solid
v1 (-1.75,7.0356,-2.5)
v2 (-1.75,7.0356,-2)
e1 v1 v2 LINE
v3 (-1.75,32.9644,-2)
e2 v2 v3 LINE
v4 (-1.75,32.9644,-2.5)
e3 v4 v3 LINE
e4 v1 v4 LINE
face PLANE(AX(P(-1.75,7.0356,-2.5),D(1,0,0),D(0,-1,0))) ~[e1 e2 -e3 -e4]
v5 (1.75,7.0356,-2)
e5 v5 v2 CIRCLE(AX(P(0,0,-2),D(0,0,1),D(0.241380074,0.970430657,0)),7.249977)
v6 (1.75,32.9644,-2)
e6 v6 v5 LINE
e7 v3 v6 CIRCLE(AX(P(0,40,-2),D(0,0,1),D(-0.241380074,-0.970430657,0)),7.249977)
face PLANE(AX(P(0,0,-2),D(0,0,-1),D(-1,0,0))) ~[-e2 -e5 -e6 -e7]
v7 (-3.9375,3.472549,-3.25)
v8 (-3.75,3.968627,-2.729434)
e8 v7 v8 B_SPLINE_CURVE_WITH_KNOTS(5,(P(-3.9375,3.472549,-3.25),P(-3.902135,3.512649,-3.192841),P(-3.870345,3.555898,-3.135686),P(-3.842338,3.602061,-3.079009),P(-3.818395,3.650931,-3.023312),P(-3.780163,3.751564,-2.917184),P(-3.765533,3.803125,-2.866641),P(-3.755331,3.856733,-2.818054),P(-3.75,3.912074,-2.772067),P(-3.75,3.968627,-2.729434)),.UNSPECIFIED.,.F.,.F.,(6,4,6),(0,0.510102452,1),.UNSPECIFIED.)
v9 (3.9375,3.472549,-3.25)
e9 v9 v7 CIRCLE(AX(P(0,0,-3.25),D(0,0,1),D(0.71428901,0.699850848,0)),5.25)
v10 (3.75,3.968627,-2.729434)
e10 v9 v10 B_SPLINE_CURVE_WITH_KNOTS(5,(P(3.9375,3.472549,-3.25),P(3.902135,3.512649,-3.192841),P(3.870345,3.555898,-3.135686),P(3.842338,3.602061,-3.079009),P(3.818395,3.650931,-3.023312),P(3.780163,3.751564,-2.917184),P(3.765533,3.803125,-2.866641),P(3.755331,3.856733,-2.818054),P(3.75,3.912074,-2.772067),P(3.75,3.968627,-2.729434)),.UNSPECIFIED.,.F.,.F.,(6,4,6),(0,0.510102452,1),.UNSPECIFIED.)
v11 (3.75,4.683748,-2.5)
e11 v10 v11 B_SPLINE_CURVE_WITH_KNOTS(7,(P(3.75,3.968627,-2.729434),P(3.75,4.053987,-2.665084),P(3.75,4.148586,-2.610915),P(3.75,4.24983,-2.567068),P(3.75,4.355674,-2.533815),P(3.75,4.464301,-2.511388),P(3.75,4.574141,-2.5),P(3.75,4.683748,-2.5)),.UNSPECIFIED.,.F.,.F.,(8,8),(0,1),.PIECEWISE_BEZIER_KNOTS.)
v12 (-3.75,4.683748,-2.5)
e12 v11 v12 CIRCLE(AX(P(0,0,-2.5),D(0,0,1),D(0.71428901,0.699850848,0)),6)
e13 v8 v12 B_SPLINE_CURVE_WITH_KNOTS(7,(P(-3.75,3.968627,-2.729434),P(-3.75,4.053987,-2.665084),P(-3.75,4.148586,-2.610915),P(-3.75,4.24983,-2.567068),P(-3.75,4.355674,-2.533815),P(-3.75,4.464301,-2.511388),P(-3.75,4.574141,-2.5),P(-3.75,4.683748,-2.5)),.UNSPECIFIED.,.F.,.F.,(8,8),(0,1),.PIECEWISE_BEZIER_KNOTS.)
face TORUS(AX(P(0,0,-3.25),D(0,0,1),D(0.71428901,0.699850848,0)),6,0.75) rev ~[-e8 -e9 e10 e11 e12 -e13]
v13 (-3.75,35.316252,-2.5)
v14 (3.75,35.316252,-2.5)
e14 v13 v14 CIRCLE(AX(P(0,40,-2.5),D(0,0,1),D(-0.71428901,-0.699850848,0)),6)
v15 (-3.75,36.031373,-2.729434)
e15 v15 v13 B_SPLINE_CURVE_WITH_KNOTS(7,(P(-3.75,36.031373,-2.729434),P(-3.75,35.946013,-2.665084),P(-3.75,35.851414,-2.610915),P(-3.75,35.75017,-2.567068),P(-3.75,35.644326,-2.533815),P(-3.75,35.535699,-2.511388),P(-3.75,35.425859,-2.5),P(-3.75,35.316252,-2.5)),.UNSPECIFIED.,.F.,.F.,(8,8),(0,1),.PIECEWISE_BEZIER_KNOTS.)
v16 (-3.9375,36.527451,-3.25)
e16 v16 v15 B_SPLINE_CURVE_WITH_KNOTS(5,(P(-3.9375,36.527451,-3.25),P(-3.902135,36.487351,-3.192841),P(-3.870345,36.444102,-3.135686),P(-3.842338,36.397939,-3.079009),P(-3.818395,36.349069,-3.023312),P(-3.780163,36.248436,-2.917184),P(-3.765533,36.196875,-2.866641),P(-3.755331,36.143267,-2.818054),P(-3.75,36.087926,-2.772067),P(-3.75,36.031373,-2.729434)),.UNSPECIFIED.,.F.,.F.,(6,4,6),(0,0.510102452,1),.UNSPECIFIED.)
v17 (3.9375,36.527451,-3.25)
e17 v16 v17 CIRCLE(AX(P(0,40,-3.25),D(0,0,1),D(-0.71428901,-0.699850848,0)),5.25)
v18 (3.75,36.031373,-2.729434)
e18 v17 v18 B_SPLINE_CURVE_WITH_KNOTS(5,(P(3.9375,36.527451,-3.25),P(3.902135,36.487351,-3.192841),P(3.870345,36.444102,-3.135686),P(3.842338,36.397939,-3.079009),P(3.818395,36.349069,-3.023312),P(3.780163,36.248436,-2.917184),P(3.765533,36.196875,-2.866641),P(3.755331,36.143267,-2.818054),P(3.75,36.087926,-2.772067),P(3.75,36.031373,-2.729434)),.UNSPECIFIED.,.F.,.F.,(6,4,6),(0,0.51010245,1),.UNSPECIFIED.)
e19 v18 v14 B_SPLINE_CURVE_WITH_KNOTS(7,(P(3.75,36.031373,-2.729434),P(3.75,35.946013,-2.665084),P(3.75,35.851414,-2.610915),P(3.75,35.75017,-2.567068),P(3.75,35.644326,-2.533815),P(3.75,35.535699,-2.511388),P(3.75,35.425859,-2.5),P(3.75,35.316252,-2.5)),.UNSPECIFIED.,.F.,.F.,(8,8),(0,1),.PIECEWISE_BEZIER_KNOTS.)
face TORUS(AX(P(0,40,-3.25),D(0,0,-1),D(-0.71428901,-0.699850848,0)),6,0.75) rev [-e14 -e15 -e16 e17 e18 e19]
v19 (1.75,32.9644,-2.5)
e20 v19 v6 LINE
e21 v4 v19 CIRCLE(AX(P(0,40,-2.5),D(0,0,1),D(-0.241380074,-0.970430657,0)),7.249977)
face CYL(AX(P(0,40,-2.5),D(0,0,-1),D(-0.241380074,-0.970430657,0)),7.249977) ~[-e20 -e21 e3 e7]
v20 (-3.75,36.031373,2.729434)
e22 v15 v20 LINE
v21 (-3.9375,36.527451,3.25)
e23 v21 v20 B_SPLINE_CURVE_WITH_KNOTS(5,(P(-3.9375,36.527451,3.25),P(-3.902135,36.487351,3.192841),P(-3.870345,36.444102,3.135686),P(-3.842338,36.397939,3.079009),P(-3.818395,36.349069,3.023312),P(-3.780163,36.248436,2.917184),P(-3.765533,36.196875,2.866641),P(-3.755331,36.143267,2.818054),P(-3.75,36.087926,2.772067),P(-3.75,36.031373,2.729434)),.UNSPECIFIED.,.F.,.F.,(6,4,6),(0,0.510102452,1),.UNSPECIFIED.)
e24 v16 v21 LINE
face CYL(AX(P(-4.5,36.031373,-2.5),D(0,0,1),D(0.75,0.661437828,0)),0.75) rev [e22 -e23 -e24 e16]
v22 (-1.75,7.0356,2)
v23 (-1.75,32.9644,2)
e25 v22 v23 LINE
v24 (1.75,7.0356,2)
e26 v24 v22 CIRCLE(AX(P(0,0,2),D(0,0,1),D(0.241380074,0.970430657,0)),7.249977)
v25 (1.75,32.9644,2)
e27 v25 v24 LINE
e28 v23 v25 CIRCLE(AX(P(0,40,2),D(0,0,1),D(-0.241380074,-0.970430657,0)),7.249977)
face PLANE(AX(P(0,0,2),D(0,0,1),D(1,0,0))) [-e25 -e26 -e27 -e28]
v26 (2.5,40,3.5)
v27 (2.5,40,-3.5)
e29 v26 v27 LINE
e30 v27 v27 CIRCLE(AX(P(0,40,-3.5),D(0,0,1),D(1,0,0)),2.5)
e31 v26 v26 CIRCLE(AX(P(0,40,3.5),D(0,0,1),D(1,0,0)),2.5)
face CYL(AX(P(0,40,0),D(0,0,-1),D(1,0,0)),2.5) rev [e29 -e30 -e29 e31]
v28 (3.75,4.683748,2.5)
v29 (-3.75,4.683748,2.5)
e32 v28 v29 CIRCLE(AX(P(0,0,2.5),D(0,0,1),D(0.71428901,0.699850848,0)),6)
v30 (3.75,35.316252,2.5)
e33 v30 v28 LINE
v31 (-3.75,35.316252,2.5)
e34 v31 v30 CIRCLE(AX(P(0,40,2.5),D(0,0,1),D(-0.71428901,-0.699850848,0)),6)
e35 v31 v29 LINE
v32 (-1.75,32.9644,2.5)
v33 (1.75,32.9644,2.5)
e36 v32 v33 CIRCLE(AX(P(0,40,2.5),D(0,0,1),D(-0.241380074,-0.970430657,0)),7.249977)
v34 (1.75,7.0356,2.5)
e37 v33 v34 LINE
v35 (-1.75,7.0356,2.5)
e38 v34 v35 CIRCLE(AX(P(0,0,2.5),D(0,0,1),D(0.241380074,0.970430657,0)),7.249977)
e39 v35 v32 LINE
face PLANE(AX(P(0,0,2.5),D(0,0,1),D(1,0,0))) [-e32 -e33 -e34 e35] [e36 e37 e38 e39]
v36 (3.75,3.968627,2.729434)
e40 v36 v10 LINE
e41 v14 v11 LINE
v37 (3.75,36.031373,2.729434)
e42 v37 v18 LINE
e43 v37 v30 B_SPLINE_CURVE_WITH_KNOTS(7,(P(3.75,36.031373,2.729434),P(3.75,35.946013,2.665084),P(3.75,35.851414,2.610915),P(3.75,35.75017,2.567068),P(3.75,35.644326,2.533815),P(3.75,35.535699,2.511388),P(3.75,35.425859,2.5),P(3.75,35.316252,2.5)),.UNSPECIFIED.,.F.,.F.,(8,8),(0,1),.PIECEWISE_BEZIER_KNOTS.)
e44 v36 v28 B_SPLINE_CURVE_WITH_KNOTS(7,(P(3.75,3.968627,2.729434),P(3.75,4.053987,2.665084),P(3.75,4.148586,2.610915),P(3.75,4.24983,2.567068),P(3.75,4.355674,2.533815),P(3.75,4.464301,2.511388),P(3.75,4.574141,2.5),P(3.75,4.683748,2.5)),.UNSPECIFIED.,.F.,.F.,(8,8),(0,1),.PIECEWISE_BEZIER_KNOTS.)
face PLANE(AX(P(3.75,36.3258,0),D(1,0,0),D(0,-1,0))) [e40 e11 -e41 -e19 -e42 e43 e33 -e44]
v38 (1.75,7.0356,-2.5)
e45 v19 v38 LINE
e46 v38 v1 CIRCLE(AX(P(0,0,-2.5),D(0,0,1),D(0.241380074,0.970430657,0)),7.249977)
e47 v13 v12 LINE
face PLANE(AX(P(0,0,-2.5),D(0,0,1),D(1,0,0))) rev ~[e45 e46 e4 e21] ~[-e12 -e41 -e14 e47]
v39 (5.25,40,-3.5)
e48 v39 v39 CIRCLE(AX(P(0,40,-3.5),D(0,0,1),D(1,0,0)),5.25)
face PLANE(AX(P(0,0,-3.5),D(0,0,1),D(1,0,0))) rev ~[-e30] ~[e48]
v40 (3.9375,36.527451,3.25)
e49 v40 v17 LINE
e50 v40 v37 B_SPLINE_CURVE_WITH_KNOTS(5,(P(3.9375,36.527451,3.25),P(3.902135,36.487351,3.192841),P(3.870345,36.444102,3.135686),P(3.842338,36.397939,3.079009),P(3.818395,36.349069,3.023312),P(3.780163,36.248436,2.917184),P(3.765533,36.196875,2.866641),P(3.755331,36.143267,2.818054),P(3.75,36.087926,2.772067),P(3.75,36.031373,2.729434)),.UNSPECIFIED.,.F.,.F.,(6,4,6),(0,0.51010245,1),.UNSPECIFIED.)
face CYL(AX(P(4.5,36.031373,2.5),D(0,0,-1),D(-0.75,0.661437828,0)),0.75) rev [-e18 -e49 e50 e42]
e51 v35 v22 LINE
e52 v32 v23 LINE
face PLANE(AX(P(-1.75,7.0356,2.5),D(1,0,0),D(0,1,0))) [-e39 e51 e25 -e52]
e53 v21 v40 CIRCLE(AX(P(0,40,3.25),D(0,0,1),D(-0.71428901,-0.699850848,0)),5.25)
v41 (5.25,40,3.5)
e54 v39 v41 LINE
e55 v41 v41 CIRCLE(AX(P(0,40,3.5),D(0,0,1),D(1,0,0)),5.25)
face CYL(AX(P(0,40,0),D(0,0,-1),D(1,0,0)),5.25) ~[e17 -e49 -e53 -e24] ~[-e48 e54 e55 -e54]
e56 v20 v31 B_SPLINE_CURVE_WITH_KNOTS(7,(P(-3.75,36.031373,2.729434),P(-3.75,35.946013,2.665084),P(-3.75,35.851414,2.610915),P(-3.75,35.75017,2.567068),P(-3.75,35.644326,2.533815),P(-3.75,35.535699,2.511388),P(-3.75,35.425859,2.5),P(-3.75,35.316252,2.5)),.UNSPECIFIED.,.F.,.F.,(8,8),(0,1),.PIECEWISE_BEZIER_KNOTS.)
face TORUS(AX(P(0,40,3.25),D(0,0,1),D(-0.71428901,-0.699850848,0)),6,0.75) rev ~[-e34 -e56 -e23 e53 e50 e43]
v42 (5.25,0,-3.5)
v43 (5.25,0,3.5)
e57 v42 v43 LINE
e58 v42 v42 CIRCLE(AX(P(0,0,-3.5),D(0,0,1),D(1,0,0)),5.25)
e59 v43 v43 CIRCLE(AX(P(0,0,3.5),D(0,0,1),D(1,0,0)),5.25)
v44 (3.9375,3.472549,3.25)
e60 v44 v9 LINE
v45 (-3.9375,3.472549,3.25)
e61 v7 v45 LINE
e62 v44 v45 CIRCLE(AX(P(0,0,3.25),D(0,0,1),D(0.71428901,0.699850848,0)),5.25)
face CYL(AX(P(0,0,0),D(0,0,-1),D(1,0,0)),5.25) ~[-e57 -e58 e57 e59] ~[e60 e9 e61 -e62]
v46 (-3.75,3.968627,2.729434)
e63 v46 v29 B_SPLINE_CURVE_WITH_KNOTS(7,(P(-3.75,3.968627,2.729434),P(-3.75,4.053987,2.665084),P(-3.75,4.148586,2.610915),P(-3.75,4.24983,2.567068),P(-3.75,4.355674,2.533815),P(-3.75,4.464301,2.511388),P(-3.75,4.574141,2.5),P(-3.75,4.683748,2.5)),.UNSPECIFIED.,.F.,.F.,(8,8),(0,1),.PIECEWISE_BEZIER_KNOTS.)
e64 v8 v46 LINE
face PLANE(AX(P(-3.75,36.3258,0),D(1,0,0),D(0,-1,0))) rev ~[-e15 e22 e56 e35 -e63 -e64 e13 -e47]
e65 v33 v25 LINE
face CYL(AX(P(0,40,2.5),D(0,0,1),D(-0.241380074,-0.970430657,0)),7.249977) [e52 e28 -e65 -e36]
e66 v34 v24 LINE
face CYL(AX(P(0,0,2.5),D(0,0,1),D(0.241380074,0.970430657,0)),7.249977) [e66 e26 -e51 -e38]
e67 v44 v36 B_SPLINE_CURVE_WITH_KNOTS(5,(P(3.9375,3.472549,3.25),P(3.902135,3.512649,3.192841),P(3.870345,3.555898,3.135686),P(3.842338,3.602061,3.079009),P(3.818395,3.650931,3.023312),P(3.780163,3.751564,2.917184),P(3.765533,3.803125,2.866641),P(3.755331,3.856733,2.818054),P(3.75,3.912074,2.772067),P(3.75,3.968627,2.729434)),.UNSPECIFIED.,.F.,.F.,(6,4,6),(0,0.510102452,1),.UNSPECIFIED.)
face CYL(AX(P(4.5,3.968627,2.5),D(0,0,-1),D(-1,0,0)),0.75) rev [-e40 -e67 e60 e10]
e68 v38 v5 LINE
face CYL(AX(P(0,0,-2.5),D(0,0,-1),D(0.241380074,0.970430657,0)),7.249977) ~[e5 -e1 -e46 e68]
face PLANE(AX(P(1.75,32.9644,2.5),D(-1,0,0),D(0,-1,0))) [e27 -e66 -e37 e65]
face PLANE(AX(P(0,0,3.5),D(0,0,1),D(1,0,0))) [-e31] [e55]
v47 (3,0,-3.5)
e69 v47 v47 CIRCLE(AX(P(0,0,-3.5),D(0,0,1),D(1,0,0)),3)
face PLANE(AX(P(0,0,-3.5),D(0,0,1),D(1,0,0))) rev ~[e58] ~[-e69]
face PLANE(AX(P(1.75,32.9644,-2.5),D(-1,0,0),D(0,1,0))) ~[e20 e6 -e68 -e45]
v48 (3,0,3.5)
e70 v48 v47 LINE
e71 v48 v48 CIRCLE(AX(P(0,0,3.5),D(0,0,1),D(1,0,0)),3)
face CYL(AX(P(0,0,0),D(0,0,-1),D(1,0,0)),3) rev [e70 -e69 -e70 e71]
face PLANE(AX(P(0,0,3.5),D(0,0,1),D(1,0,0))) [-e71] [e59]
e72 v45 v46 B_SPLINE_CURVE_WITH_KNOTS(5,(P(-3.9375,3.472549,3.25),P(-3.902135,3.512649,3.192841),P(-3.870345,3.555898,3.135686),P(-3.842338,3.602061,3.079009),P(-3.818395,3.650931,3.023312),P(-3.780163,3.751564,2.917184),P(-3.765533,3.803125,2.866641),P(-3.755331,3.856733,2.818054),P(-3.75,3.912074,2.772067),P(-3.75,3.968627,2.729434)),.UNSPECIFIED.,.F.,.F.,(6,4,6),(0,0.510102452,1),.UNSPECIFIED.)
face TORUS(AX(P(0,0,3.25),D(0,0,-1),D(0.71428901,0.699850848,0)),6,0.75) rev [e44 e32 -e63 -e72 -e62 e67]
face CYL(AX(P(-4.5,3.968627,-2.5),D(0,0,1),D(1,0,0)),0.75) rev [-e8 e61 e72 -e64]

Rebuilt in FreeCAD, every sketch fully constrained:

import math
import FreeCAD as App
import Part
import Sketcher
from FreeCAD import Vector


def edges_at(feature, points):
    """Names of the edges that pass closest to the given points."""
    edges = feature.Shape.Edges
    near = lambda p: min(range(len(edges)), key=lambda i: edges[i].distToShape(Part.Vertex(*p))[0])
    return sorted({f"Edge{near(p) + 1}" for p in points})

doc = App.newDocument("Part")
body = doc.addObject("PartDesign::Body", "Body")
body.AllowCompound = True

sketch1 = body.newObject("Sketcher::SketchObject", "Sketch")
sketch1.AttachmentSupport = (doc.getObject("XY_Plane"), [""])
sketch1.MapMode = "FlatFace"
sketch1.addGeometry([
    Part.Circle(Vector(0, 40, 0), Vector(0, 0, 1), 5.2),
    Part.Circle(Vector(0, 40, 0), Vector(0, 0, 1), 2.5),
    Part.Circle(Vector(0, 0, 0), Vector(0, 0, 1), 5.2),
    Part.Circle(Vector(0, 0, 0), Vector(0, 0, 1), 3),
], False)
sketch1.addConstraint([
    Sketcher.Constraint("Coincident", 2, 3, -1, 1),
    Sketcher.Constraint("Coincident", 3, 3, -1, 1),
    Sketcher.Constraint("Coincident", 1, 3, 0, 3),
    Sketcher.Constraint("Equal", 0, 2),
    Sketcher.Constraint("PointOnObject", 0, 3, -2),
    Sketcher.Constraint("Diameter", 1, 5.0),
    Sketcher.Constraint("Diameter", 3, 6.0),
    Sketcher.Constraint("Diameter", 0, 10.5),
    Sketcher.Constraint("DistanceY", -1, 1, 0, 3, 40.0),
])
pad1 = body.newObject("PartDesign::Pad", "Pad")
pad1.Profile = sketch1
pad1.Length = 7
pad1.Midplane = True

sketch2 = body.newObject("Sketcher::SketchObject", "Sketch001")
sketch2.AttachmentSupport = (doc.getObject("XY_Plane"), [""])
sketch2.MapMode = "FlatFace"
sketch2.addGeometry([
    Part.ArcOfCircle(Part.Circle(Vector(0, 40, 0), Vector(0, 0, 1), 5), math.radians(-136), math.radians(-44)),
    Part.LineSegment(Vector(-4, 36, 0), Vector(-4, 4, 0)),
    Part.ArcOfCircle(Part.Circle(Vector(0, 0, 0), Vector(0, 0, 1), 5), math.radians(44), math.radians(136)),
    Part.LineSegment(Vector(4, 4, 0), Vector(4, 36, 0)),
], False)
sketch2.addConstraint([
    Sketcher.Constraint("Coincident", 0, 1, 1, 1),
    Sketcher.Constraint("Coincident", 1, 2, 2, 2),
    Sketcher.Constraint("Coincident", 2, 1, 3, 1),
    Sketcher.Constraint("Coincident", 3, 2, 0, 2),
    Sketcher.Constraint("Vertical", 1),
    Sketcher.Constraint("Vertical", 3),
    Sketcher.Constraint("Coincident", 2, 3, -1, 1),
    Sketcher.Constraint("Equal", 0, 2),
    Sketcher.Constraint("Symmetric", 0, 1, 3, 2, -2),
    Sketcher.Constraint("DistanceX", 0, 1, -1, 1, 3.75),
    Sketcher.Constraint("Radius", 0, 5.25),
    Sketcher.Constraint("DistanceY", -1, 1, 0, 3, 40.0),
])
pad2 = body.newObject("PartDesign::Pad", "Pad001")
pad2.Profile = sketch2
pad2.Length = 5
pad2.Midplane = True

sketch3 = body.newObject("Sketcher::SketchObject", "Sketch002")
sketch3.AttachmentSupport = (doc.getObject("XY_Plane"), [""])
sketch3.MapMode = "FlatFace"
sketch3.AttachmentOffset = App.Placement(Vector(0, 0, 2.5), App.Rotation())
sketch3.addGeometry([
    Part.LineSegment(Vector(1.8, 7, 0), Vector(1.8, 33, 0)),
    Part.ArcOfCircle(Part.Circle(Vector(0, 40, 0), Vector(0, 0, 1), 7.2), math.radians(-104), math.radians(-76)),
    Part.LineSegment(Vector(-1.8, 33, 0), Vector(-1.8, 7, 0)),
    Part.ArcOfCircle(Part.Circle(Vector(0, 0, 0), Vector(0, 0, 1), 7.2), math.radians(76), math.radians(104)),
], False)
sketch3.addConstraint([
    Sketcher.Constraint("Coincident", 0, 2, 1, 2),
    Sketcher.Constraint("Coincident", 1, 1, 2, 1),
    Sketcher.Constraint("Coincident", 2, 2, 3, 2),
    Sketcher.Constraint("Coincident", 3, 1, 0, 1),
    Sketcher.Constraint("Vertical", 0),
    Sketcher.Constraint("Vertical", 2),
    Sketcher.Constraint("Coincident", 3, 3, -1, 1),
    Sketcher.Constraint("Equal", 1, 3),
    Sketcher.Constraint("Symmetric", 0, 2, 1, 1, -2),
    Sketcher.Constraint("Radius", 1, 7.25),
    Sketcher.Constraint("DistanceY", -1, 1, 1, 3, 40.0),
    Sketcher.Constraint("DistanceX", 1, 1, 0, 2, 3.5),
])
pocket1 = body.newObject("PartDesign::Pocket", "Pocket")
pocket1.Profile = sketch3
pocket1.Length = 0.5
doc.recompute()

mirrored = body.newObject("PartDesign::Mirrored", "Mirrored")
mirrored.Originals = [pocket1]
mirrored.MirrorPlane = (doc.getObject("XY_Plane"), [""])
body.Tip = mirrored
doc.recompute()

fillet = body.newObject("PartDesign::Fillet", "Fillet")
fillet.Base = (mirrored, edges_at(mirrored, [
    (0, 34.75, 2.5),
    (3.75, 36.326, 0),
    (0, 34.75, -2.5),
    (-3.75, 36.326, 0),
    (3.75, 3.674, 0),
    (0, 5.25, -2.5),
    (-3.75, 3.674, 0),
    (0, 5.25, 2.5),
]))
fillet.Radius = 0.75

doc.recompute()
